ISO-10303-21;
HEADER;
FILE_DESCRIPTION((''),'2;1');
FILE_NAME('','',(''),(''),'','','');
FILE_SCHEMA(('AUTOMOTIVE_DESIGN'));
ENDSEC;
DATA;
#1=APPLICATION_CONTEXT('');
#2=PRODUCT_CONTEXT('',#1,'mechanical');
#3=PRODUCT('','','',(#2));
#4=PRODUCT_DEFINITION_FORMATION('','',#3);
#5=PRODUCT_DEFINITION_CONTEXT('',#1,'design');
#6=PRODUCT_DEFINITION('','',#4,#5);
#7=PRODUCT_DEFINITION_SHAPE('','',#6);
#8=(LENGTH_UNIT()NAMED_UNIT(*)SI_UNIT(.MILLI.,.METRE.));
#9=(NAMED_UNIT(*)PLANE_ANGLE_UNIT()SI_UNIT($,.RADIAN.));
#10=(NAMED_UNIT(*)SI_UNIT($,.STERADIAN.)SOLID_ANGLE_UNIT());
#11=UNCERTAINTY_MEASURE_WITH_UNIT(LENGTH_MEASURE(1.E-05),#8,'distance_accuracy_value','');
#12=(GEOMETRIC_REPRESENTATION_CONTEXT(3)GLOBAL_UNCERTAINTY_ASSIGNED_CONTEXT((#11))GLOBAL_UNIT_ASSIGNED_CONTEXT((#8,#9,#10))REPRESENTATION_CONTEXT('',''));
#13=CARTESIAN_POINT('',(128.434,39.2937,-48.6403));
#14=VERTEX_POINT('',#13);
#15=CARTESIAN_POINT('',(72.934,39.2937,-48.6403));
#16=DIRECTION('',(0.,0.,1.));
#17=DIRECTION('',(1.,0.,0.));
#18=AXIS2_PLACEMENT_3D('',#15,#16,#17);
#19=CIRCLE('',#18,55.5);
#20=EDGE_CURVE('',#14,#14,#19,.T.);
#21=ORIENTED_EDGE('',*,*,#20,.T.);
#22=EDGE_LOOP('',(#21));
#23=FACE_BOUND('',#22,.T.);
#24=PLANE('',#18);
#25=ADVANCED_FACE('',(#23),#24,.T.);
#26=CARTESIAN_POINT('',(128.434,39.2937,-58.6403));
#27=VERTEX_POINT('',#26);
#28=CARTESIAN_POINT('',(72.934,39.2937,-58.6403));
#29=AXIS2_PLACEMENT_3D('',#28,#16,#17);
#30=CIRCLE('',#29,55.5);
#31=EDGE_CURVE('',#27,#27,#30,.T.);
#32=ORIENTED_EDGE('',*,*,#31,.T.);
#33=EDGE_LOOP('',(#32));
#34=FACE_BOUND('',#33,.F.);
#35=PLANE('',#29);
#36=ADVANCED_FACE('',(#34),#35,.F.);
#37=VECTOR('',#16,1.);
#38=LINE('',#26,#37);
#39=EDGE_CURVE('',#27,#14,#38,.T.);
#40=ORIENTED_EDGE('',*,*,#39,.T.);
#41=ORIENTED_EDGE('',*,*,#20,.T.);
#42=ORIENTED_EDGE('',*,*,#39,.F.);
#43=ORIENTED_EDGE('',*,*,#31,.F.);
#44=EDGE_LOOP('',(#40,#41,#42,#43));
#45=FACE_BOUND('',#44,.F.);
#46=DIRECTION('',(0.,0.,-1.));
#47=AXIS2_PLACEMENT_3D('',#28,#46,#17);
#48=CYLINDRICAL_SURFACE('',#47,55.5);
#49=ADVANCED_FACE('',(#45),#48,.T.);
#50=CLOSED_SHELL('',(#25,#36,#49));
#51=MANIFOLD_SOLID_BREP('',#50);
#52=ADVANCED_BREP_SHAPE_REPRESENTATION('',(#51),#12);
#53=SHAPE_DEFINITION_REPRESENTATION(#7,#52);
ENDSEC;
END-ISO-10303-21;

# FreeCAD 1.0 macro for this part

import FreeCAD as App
import Part
import Sketcher
from FreeCAD import Vector

doc = App.newDocument("Part")
body = doc.addObject("PartDesign::Body", "Body")

sketch1 = body.newObject("Sketcher::SketchObject", "Sketch")
sketch1.AttachmentSupport = (doc.getObject("XY_Plane"), [""])
sketch1.MapMode = "FlatFace"
sketch1.AttachmentOffset = App.Placement(Vector(0, 0, -58.6403), App.Rotation())
sketch1.addGeometry(Part.Circle(Vector(73, 39, 0), Vector(0, 0, 1), 56), False)
sketch1.addConstraint([
    Sketcher.Constraint("Diameter", 0, 111.0),
    Sketcher.Constraint("DistanceX", -1, 1, 0, 3, 72.934),
    Sketcher.Constraint("DistanceY", -1, 1, 0, 3, 39.2937),
])
pad1 = body.newObject("PartDesign::Pad", "Pad")
pad1.Profile = sketch1
pad1.Length = 10

doc.recompute()
